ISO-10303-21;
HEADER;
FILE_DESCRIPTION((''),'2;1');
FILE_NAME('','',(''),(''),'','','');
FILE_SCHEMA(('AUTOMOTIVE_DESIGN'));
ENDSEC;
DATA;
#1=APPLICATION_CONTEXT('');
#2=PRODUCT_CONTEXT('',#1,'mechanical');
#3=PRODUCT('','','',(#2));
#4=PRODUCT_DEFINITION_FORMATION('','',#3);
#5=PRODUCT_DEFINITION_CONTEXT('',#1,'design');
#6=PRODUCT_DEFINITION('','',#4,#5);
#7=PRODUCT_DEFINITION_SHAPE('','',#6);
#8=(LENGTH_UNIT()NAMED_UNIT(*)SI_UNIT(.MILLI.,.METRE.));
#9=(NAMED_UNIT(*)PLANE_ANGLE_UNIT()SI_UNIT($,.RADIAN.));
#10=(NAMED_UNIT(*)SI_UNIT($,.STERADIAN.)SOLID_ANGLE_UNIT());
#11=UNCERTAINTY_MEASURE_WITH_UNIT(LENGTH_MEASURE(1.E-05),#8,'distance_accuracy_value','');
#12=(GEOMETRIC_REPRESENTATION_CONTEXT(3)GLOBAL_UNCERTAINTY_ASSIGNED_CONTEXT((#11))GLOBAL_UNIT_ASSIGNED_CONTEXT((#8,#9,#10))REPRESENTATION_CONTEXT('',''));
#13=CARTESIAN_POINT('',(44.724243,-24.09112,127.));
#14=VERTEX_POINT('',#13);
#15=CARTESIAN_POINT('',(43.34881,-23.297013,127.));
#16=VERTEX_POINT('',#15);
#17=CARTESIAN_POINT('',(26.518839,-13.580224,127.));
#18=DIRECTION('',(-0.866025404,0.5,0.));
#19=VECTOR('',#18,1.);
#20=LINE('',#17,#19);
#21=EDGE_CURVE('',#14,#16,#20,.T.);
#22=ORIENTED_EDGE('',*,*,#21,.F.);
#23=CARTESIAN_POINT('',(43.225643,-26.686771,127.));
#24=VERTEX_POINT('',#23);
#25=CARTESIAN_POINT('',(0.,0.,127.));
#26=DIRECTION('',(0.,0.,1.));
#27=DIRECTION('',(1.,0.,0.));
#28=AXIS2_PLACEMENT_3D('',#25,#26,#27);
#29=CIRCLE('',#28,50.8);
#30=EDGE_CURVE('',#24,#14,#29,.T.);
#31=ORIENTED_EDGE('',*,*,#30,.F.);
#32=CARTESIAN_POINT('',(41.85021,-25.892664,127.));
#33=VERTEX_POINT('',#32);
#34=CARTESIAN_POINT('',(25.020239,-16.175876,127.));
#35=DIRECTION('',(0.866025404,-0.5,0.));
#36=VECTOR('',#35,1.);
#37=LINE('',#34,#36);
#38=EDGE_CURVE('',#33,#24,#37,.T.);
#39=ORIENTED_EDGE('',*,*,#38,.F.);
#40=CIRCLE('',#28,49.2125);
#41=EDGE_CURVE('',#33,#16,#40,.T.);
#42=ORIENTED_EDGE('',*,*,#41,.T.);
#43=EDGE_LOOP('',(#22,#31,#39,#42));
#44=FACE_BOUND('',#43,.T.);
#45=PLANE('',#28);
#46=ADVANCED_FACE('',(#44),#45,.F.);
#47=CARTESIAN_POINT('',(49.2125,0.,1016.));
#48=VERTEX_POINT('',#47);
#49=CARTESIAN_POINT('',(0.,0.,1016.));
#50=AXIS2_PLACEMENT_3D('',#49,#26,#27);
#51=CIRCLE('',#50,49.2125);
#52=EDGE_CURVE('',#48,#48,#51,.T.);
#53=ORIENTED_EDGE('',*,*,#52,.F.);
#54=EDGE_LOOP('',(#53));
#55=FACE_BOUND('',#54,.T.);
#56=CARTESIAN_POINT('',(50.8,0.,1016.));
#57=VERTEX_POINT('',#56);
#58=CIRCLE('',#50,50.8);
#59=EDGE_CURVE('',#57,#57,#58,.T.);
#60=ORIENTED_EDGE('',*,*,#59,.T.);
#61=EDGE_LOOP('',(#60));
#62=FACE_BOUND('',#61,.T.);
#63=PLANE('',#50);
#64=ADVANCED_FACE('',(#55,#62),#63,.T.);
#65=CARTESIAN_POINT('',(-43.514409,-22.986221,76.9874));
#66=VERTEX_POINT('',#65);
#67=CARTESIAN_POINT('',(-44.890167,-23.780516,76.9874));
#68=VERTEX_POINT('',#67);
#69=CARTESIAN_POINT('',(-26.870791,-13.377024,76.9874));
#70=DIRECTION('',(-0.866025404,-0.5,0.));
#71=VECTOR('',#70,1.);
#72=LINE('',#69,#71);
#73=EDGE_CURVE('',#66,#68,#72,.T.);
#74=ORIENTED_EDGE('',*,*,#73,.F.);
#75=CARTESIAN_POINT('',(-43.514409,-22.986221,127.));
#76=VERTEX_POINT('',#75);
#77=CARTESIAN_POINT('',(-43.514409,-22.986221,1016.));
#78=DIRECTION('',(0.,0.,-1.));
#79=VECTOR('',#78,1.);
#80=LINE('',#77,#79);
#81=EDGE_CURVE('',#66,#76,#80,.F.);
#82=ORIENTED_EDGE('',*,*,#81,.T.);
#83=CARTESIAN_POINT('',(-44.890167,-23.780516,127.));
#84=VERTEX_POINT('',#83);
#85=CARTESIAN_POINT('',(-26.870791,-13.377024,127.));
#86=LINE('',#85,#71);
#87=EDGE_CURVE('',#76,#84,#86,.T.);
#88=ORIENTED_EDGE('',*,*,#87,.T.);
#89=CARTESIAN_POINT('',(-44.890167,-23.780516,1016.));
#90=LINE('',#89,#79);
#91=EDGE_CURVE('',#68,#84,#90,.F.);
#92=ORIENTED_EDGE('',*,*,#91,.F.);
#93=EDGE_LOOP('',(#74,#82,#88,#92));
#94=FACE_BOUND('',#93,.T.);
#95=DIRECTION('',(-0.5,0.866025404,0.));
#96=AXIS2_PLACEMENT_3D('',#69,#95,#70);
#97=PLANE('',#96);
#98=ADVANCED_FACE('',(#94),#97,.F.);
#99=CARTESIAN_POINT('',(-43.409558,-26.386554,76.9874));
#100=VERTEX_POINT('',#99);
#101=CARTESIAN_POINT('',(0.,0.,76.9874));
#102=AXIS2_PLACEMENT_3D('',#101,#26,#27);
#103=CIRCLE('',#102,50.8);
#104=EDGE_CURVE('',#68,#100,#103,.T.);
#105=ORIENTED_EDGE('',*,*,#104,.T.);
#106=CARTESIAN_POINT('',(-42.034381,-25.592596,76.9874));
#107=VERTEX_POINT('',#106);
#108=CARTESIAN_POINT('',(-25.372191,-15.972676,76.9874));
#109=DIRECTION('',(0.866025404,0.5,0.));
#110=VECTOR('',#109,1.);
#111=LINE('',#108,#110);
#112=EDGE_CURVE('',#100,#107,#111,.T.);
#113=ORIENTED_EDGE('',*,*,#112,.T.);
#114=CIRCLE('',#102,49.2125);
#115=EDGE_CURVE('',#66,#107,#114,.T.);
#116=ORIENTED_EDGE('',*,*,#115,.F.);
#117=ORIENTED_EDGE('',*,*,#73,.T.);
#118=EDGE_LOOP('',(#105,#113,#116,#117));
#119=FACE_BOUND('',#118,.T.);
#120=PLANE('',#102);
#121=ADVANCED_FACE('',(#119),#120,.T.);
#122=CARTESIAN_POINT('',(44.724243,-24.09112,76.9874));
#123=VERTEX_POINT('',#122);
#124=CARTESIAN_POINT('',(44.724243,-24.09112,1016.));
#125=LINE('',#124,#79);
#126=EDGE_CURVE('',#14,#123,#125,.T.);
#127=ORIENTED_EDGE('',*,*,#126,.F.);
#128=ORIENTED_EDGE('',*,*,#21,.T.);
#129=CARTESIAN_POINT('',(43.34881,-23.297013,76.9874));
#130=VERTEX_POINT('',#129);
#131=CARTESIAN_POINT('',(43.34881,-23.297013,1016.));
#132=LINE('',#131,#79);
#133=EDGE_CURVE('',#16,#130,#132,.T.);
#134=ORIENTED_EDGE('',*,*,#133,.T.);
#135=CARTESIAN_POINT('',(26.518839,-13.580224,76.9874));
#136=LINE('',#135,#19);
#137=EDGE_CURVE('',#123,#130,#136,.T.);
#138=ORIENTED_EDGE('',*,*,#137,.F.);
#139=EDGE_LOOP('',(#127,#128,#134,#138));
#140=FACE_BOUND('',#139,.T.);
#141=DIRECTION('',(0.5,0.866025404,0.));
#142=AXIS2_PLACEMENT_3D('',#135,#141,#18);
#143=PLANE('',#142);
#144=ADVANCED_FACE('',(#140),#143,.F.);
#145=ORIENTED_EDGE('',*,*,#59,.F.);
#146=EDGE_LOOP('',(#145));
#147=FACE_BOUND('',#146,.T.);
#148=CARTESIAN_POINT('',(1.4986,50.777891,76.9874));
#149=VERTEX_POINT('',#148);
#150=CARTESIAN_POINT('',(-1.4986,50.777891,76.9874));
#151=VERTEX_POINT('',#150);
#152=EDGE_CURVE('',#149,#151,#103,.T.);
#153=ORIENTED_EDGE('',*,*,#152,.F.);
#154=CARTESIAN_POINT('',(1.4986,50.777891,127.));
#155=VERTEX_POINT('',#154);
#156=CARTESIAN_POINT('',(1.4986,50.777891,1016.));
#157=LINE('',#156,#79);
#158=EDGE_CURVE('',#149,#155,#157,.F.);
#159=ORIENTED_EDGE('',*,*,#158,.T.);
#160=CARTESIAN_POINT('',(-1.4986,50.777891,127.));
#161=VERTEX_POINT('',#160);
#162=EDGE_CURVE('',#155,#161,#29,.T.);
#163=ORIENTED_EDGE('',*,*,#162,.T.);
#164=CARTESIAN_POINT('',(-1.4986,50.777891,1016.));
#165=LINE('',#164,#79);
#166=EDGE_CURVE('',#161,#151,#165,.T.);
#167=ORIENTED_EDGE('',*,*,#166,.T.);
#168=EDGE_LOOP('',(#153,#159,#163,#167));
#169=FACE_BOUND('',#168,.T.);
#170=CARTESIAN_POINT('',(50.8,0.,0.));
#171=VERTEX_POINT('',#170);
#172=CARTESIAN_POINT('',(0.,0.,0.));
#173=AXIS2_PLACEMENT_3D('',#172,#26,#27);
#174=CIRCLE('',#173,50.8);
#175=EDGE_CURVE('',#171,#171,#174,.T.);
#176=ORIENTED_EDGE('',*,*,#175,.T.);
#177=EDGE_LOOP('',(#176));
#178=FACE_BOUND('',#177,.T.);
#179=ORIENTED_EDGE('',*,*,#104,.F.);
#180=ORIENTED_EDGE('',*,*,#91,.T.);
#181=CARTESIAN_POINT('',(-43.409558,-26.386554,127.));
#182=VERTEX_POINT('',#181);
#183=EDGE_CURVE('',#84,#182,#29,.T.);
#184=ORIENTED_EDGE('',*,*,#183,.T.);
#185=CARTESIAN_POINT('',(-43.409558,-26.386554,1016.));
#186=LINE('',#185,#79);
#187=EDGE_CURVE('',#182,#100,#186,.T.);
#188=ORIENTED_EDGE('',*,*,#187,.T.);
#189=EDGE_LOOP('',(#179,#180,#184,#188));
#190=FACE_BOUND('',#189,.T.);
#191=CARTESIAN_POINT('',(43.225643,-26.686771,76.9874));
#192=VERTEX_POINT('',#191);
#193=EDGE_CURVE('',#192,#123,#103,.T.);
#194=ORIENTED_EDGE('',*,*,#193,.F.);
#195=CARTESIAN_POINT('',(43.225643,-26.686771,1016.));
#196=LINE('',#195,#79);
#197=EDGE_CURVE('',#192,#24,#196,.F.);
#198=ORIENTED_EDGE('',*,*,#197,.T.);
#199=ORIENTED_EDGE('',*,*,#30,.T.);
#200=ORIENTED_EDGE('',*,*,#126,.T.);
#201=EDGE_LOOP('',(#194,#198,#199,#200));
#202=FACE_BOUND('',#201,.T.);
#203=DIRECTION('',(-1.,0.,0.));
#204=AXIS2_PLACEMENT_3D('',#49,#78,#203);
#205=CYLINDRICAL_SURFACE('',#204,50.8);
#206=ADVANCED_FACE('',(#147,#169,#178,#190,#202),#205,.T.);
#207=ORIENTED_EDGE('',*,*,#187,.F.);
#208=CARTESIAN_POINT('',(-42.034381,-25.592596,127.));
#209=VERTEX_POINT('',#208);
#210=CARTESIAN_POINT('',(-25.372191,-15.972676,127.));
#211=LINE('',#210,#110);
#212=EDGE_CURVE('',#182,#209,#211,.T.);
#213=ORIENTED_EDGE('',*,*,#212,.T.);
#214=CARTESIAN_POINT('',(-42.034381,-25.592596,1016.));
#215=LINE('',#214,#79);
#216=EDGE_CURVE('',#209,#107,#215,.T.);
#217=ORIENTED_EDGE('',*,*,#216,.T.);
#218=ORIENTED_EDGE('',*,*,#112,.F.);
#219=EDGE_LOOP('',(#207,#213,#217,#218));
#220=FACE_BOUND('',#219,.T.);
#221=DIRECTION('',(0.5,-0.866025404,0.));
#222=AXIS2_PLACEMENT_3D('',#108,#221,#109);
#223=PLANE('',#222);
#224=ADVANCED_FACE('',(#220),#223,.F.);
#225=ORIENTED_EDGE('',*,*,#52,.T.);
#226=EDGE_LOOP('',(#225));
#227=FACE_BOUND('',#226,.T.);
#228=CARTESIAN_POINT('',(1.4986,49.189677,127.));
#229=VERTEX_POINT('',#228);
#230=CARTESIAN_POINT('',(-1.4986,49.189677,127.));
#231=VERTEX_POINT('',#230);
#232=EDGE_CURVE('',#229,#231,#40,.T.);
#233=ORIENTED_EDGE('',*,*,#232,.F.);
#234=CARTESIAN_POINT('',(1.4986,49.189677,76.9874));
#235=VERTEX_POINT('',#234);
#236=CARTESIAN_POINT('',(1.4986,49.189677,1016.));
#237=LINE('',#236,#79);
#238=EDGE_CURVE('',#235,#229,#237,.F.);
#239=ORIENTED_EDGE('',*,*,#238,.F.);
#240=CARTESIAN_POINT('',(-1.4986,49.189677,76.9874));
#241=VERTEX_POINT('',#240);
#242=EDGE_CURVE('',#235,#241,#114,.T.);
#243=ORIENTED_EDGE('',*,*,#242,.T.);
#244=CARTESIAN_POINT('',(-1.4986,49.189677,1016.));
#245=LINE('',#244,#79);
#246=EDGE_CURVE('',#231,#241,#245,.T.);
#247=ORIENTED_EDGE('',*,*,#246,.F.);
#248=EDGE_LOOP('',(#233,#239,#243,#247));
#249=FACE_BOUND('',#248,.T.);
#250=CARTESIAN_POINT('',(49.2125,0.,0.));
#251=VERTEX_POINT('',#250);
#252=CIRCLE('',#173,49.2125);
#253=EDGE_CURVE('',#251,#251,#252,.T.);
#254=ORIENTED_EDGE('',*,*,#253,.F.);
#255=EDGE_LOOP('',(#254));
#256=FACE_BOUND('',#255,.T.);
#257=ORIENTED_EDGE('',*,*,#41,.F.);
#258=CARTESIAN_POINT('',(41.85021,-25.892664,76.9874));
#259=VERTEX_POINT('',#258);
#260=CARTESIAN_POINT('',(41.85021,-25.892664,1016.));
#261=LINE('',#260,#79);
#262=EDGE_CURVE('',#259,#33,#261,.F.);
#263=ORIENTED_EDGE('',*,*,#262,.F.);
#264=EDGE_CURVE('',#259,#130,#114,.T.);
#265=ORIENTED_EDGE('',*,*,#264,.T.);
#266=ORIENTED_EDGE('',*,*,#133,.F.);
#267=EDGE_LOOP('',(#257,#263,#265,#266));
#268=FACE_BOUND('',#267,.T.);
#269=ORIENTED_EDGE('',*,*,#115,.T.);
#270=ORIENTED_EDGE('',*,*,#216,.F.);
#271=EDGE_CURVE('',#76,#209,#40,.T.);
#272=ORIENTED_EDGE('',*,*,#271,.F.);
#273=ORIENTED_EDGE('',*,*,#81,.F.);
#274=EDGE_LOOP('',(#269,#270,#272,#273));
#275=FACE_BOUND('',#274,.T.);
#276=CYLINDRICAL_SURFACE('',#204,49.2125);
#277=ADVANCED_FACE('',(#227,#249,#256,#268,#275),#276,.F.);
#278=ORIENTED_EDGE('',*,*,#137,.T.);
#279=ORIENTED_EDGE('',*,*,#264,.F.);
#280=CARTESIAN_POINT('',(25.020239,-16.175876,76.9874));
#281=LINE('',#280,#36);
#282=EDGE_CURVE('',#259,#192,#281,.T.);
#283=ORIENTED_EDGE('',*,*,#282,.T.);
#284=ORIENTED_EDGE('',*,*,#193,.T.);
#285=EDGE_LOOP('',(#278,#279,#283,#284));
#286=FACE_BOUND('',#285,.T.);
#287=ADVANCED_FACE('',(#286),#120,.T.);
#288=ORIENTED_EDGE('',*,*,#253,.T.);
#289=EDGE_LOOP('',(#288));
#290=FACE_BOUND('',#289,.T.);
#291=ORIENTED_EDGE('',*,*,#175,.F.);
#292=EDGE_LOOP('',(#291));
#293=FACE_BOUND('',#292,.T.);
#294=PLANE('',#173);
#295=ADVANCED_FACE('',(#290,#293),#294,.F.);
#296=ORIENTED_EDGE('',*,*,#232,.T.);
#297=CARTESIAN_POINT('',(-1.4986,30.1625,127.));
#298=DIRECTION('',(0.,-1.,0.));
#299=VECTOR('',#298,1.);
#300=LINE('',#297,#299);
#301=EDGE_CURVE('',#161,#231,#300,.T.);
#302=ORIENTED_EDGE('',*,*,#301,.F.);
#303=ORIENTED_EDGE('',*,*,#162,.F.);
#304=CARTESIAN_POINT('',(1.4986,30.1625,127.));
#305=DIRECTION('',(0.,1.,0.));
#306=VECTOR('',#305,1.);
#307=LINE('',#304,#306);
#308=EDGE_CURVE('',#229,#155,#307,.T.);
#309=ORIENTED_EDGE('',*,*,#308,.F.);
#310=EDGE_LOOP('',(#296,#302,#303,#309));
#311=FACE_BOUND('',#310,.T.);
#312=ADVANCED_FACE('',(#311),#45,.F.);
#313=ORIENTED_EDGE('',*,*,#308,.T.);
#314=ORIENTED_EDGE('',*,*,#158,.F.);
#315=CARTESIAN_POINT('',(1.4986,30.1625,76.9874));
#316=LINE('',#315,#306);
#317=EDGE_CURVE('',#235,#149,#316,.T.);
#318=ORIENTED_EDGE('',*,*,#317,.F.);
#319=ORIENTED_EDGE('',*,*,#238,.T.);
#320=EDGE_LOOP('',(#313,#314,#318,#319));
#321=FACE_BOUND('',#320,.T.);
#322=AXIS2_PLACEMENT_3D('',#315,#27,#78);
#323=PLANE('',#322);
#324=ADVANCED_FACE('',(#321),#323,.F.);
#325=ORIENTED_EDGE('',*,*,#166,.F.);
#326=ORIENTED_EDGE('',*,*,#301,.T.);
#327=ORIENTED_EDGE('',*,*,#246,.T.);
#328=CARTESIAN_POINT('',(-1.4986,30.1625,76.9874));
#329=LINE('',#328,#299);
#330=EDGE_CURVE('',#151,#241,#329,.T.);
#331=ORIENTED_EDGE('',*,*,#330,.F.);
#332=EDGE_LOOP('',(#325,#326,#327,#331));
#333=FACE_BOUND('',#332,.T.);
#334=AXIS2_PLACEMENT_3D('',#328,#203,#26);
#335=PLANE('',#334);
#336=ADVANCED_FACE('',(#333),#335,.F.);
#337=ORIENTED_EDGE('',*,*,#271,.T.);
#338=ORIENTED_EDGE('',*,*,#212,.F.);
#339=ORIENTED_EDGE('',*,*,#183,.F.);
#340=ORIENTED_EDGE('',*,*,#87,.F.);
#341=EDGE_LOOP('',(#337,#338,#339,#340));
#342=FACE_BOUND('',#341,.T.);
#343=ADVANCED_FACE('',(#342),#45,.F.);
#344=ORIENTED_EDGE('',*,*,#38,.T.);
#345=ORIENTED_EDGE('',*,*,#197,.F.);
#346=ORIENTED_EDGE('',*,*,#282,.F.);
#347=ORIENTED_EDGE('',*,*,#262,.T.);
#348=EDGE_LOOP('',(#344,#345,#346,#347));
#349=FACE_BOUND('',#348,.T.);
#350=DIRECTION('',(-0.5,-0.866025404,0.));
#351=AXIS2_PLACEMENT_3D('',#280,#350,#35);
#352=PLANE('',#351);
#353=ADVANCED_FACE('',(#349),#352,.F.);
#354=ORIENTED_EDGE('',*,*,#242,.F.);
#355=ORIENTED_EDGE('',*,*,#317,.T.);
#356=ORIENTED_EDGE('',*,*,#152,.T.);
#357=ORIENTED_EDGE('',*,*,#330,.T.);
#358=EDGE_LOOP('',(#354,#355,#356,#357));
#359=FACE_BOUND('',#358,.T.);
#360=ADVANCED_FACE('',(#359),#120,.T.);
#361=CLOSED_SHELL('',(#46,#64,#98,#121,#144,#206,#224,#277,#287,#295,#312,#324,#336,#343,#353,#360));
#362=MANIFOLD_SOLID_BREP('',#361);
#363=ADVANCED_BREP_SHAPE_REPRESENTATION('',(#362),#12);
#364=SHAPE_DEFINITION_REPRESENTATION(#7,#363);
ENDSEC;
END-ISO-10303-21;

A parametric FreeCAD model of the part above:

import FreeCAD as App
import Part
import Sketcher

V = App.Vector
Q = App.Units.Quantity

doc = App.newDocument("Part")
body = doc.addObject("PartDesign::Body", "Body")

# Sketch on XY plane
sketch1 = body.newObject("Sketcher::SketchObject", "Sketch")
sketch1.AttachmentSupport = (doc.getObject("XY_Plane"), [""])
sketch1.MapMode = "FlatFace"
sketch1.addGeometry(Part.Circle(V(0, 0, 0), V(0, 0, 1), 51), False)
sketch1.addGeometry(Part.Circle(V(0, 0, 0), V(0, 0, 1), 49), False)
sketch1.addConstraint(Sketcher.Constraint("Coincident", 0, 3, -1, 1))
sketch1.addConstraint(Sketcher.Constraint("Coincident", 1, 3, -1, 1))
sketch1.addConstraint(Sketcher.Constraint("Diameter", 0, Q("4 in")))
sketch1.addConstraint(Sketcher.Constraint("Diameter", 1, Q("3.875 in")))
pad1 = body.newObject("PartDesign::Pad", "Pad")
pad1.Profile = sketch1
pad1.Length = Q("40 in")

# Sketch on XY plane
sketch2 = body.newObject("Sketcher::SketchObject", "Sketch001")
sketch2.AttachmentSupport = (doc.getObject("XY_Plane"), [""])
sketch2.MapMode = "FlatFace"
sketch2.AttachmentOffset = App.Placement(V(0, 0, 5 * 25.4), App.Rotation())
sketch2.addGeometry(Part.LineSegment(V(26.5, -13.6, 0), V(25, -16.2, 0)), False)
sketch2.addGeometry(Part.LineSegment(V(25, -16.2, 0), V(58, -35.2, 0)), False)
sketch2.addGeometry(Part.LineSegment(V(58, -35.2, 0), V(59.5, -32.6, 0)), False)
sketch2.addGeometry(Part.LineSegment(V(59.5, -32.6, 0), V(26.5, -13.6, 0)), False)
sketch2.addGeometry(Part.LineSegment(V(-1.5, 68.3, 0), V(-1.5, 30.2, 0)), False)
sketch2.addGeometry(Part.LineSegment(V(-1.5, 30.2, 0), V(1.5, 30.2, 0)), False)
sketch2.addGeometry(Part.LineSegment(V(1.5, 30.2, 0), V(1.5, 68.3, 0)), False)
sketch2.addGeometry(Part.LineSegment(V(1.5, 68.3, 0), V(-1.5, 68.3, 0)), False)
sketch2.addGeometry(Part.LineSegment(V(-25.4, -16, 0), V(-26.9, -13.4, 0)), False)
sketch2.addGeometry(Part.LineSegment(V(-26.9, -13.4, 0), V(-59.9, -32.4, 0)), False)
sketch2.addGeometry(Part.LineSegment(V(-59.9, -32.4, 0), V(-58.4, -35, 0)), False)
sketch2.addGeometry(Part.LineSegment(V(-58.4, -35, 0), V(-25.4, -16, 0)), False)
sketch2.addConstraint(Sketcher.Constraint("Coincident", 0, 2, 1, 1))
sketch2.addConstraint(Sketcher.Constraint("Coincident", 1, 2, 2, 1))
sketch2.addConstraint(Sketcher.Constraint("Coincident", 2, 2, 3, 1))
sketch2.addConstraint(Sketcher.Constraint("Coincident", 3, 2, 0, 1))
sketch2.addConstraint(Sketcher.Constraint("Coincident", 4, 2, 5, 1))
sketch2.addConstraint(Sketcher.Constraint("Coincident", 5, 2, 6, 1))
sketch2.addConstraint(Sketcher.Constraint("Coincident", 6, 2, 7, 1))
sketch2.addConstraint(Sketcher.Constraint("Coincident", 7, 2, 4, 1))
sketch2.addConstraint(Sketcher.Constraint("Coincident", 8, 2, 9, 1))
sketch2.addConstraint(Sketcher.Constraint("Coincident", 9, 2, 10, 1))
sketch2.addConstraint(Sketcher.Constraint("Coincident", 10, 2, 11, 1))
sketch2.addConstraint(Sketcher.Constraint("Coincident", 11, 2, 8, 1))
sketch2.addConstraint(Sketcher.Constraint("Vertical", 4))
sketch2.addConstraint(Sketcher.Constraint("Horizontal", 5))
sketch2.addConstraint(Sketcher.Constraint("Vertical", 6))
sketch2.addConstraint(Sketcher.Constraint("Horizontal", 7))
sketch2.addConstraint(Sketcher.Constraint("Perpendicular", 0, 1))
sketch2.addConstraint(Sketcher.Constraint("Perpendicular", 1, 2))
sketch2.addConstraint(Sketcher.Constraint("Perpendicular", 2, 3))
sketch2.addConstraint(Sketcher.Constraint("Perpendicular", 8, 9))
sketch2.addConstraint(Sketcher.Constraint("Perpendicular", 9, 10))
sketch2.addConstraint(Sketcher.Constraint("Perpendicular", 10, 11))
sketch2.addConstraint(Sketcher.Constraint("Equal", 2, 8))
sketch2.addConstraint(Sketcher.Constraint("Equal", 3, 9))
sketch2.addConstraint(Sketcher.Constraint("DistanceY", 4, 2, 4, 1, Q("1.5 in")))
sketch2.addConstraint(Sketcher.Constraint("Angle", 0, Q("-120 deg")))
sketch2.addConstraint(Sketcher.Constraint("Angle", 8, Q("120 deg")))
sketch2.addConstraint(Sketcher.Constraint("Distance", 1, Q("1.5 in")))
sketch2.addConstraint(Sketcher.Constraint("DistanceX", 5, 1, 5, 2, Q("0.118 in")))
sketch2.addConstraint(Sketcher.Constraint("Distance", 0, Q("0.118 in")))
sketch2.addConstraint(Sketcher.Constraint("DistanceX", 4, 2, -1, 1, Q("0.059 in")))
sketch2.addConstraint(Sketcher.Constraint("DistanceY", -1, 1, 4, 2, Q("1.1875 in")))
sketch2.addConstraint(Sketcher.Constraint("DistanceY", 3, 2, 8, 2, Q("0.008 in")))
sketch2.addConstraint(Sketcher.Constraint("DistanceX", -1, 1, 0, 2, 25.020239))
sketch2.addConstraint(Sketcher.Constraint("DistanceX", 8, 2, -1, 1, 26.870791))
sketch2.addConstraint(Sketcher.Constraint("DistanceY", 0, 2, -1, 1, 16.175876))
pocket1 = body.newObject("PartDesign::Pocket", "Pocket")
pocket1.Profile = sketch2
pocket1.Length = Q("1.969 in")

doc.recompute()
